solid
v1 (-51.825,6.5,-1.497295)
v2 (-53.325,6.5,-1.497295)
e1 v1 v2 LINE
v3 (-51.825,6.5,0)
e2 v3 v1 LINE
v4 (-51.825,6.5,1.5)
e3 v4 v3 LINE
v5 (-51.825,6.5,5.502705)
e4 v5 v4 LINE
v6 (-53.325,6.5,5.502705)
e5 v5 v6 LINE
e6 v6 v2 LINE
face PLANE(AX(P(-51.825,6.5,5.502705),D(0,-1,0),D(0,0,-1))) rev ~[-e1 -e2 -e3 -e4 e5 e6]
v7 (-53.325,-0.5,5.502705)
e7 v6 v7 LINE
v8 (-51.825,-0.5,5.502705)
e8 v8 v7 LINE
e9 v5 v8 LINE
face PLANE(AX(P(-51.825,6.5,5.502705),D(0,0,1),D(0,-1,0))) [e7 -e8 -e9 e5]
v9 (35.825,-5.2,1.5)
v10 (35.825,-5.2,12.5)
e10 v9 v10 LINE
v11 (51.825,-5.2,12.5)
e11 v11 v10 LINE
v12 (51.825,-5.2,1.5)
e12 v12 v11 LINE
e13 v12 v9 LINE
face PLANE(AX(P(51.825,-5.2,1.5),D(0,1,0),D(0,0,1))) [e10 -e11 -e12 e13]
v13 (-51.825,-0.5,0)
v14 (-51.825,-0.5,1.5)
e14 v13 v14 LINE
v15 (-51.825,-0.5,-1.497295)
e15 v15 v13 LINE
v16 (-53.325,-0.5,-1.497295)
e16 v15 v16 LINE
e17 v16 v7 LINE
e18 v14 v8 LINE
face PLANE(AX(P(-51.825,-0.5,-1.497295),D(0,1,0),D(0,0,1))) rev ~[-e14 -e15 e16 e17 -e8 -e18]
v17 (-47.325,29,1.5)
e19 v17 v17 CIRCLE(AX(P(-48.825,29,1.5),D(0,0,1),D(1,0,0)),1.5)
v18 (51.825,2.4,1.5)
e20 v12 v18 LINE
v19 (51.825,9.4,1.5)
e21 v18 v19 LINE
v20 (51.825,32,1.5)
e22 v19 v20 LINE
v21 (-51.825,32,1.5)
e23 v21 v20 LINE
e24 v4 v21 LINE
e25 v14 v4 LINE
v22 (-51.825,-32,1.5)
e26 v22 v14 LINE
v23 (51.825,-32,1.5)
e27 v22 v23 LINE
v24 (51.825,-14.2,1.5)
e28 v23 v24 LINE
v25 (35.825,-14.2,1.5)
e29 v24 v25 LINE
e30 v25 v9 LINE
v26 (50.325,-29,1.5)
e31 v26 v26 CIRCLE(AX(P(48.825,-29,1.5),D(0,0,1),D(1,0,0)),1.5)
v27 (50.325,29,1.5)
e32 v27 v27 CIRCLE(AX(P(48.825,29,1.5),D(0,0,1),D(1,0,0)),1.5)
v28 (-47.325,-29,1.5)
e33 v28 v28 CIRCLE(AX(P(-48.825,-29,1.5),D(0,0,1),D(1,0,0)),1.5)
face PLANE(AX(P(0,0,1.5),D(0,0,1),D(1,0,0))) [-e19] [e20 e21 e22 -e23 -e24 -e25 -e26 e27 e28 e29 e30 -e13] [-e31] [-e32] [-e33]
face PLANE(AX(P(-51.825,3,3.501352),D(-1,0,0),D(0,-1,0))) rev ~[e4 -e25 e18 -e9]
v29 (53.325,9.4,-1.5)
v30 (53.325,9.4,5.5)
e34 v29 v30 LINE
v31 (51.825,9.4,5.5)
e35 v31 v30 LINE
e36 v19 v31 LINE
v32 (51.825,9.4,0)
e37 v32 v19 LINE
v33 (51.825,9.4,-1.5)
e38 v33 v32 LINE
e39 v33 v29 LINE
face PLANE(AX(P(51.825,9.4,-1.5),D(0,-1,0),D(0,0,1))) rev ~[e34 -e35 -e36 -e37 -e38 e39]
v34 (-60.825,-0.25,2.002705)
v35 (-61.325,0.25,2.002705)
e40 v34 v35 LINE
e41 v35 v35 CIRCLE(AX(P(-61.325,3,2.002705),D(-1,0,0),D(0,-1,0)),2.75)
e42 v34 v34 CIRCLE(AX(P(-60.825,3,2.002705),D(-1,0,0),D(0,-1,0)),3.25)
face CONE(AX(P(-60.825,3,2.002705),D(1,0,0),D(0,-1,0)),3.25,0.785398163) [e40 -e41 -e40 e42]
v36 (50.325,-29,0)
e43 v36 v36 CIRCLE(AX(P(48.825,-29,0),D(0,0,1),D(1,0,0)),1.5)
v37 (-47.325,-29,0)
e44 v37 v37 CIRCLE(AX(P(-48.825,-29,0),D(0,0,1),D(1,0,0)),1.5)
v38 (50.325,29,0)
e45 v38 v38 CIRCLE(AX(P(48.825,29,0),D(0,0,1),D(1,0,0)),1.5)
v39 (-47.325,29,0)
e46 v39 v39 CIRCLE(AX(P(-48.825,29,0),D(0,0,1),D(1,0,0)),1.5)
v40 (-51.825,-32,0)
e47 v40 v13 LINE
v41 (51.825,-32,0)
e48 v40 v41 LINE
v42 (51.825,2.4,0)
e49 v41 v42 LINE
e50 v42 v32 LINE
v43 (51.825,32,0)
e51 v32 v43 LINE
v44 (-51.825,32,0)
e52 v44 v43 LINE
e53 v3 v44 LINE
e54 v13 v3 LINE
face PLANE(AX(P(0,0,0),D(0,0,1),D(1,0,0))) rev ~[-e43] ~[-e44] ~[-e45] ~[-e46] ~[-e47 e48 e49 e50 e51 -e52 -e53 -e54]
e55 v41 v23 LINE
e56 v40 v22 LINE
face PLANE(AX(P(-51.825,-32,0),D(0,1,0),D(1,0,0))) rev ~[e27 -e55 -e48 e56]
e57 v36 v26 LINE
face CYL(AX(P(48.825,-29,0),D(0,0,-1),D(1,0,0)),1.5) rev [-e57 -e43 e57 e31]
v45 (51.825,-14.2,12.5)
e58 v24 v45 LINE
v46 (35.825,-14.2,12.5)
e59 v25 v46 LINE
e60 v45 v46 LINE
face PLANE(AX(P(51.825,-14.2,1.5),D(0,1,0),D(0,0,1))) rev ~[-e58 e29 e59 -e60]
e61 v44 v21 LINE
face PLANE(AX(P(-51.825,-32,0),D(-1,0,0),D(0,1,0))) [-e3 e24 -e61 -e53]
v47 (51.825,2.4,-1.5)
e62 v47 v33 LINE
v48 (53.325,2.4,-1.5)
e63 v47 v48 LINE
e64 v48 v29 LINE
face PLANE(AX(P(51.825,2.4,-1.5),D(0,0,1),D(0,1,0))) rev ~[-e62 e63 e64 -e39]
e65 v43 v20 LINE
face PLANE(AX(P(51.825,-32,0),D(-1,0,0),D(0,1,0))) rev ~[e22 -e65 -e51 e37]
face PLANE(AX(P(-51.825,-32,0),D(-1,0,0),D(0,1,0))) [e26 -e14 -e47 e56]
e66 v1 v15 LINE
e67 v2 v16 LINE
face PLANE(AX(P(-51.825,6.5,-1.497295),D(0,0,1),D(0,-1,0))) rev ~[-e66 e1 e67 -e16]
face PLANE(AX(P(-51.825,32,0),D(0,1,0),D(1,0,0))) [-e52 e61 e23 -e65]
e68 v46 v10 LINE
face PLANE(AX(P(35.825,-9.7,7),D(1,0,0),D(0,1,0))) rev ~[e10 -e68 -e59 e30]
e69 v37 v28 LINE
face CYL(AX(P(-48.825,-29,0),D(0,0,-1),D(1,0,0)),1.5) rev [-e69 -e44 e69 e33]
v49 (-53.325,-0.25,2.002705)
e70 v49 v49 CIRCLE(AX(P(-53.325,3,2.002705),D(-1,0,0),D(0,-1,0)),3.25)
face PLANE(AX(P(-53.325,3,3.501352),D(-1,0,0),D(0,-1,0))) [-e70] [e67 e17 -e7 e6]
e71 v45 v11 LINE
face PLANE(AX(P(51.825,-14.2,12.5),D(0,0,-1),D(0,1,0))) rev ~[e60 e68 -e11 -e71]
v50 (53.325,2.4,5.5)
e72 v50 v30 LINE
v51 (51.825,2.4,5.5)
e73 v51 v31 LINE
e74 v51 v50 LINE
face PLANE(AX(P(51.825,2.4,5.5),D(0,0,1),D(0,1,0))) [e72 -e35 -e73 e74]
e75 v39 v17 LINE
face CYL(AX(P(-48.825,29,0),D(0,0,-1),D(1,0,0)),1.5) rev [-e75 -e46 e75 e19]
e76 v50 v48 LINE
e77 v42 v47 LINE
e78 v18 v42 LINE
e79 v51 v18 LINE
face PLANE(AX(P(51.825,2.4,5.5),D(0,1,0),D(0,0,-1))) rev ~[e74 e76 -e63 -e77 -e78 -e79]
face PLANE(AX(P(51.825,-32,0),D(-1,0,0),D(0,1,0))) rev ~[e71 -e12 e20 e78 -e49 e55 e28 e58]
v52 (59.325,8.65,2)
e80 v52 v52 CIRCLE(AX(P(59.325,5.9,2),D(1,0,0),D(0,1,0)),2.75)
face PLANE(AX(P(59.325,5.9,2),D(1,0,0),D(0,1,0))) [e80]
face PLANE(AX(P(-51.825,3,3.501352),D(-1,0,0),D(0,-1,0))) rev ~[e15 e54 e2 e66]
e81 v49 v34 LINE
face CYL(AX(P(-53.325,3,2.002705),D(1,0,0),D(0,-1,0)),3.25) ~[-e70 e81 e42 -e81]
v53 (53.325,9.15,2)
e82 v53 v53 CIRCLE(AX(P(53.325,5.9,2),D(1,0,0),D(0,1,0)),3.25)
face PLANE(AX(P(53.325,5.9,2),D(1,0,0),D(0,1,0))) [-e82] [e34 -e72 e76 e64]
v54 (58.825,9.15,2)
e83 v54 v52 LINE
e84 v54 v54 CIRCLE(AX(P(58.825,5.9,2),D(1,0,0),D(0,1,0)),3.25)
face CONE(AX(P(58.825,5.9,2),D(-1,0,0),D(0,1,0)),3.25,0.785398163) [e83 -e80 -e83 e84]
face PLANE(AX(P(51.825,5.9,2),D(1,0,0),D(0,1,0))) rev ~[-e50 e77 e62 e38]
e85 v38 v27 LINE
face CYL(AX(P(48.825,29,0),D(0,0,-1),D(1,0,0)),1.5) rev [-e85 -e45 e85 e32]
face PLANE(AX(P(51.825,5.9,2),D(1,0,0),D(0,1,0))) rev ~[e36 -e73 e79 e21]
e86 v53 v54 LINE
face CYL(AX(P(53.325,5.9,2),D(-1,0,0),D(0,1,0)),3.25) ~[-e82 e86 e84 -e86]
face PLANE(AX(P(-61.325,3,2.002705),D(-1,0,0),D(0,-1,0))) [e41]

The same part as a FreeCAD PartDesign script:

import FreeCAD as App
import Part
import Sketcher
from FreeCAD import Vector


def edges_at(feature, points):
    """Names of the edges that pass closest to the given points."""
    edges = feature.Shape.Edges
    near = lambda p: min(range(len(edges)), key=lambda i: edges[i].distToShape(Part.Vertex(*p))[0])
    return sorted({f"Edge{near(p) + 1}" for p in points})

doc = App.newDocument("Part")
body = doc.addObject("PartDesign::Body", "Body")

# Sketch on XY plane
sketch1 = body.newObject("Sketcher::SketchObject", "Sketch")
sketch1.AttachmentSupport = (doc.getObject("XY_Plane"), [""])
sketch1.MapMode = "FlatFace"
sketch1.addGeometry([
    Part.LineSegment(Vector(-51.8, 32, 0), Vector(-51.8, -32, 0)),  # 0
    Part.LineSegment(Vector(-51.8, -32, 0), Vector(51.8, -32, 0)),  # 1
    Part.LineSegment(Vector(51.8, -32, 0), Vector(51.8, 32, 0)),  # 2
    Part.LineSegment(Vector(51.8, 32, 0), Vector(-51.8, 32, 0)),  # 3
    Part.Circle(Vector(-48.8, -29, 0), Vector(0, 0, 1), 1.5),  # 4
    Part.Circle(Vector(48.8, -29, 0), Vector(0, 0, 1), 1.5),  # 5
    Part.Circle(Vector(-48.8, 29, 0), Vector(0, 0, 1), 1.5),  # 6
    Part.Circle(Vector(48.8, 29, 0), Vector(0, 0, 1), 1.5),  # 7
], False)
sketch1.addConstraint([
    Sketcher.Constraint("Coincident", 0, 2, 1, 1),
    Sketcher.Constraint("Coincident", 1, 2, 2, 1),
    Sketcher.Constraint("Coincident", 2, 2, 3, 1),
    Sketcher.Constraint("Coincident", 3, 2, 0, 1),
    Sketcher.Constraint("Vertical", 0),
    Sketcher.Constraint("Horizontal", 1),
    Sketcher.Constraint("Vertical", 2),
    Sketcher.Constraint("Horizontal", 3),
    Sketcher.Constraint("Equal", 4, 5),
    Sketcher.Constraint("Equal", 5, 6),
    Sketcher.Constraint("Equal", 6, 7),
    Sketcher.Constraint("Symmetric", 5, 3, 6, 3, -1, 1),
    Sketcher.Constraint("Symmetric", 4, 3, 7, 3, -1, 1),
    Sketcher.Constraint("Symmetric", 0, 2, 2, 2, -1, 1),
    Sketcher.Constraint("Symmetric", 4, 3, 5, 3, -2),
    Sketcher.Constraint("Diameter", 4, 3.0),
    Sketcher.Constraint("DistanceY", 0, 2, 0, 1, 64.0),
    Sketcher.Constraint("DistanceY", 4, 3, -1, 1, 29.0),
    Sketcher.Constraint("DistanceX", 0, 2, 4, 3, 3.0),
    Sketcher.Constraint("DistanceX", 1, 1, 1, 2, 103.65),
])
pad1 = body.newObject("PartDesign::Pad", "Pad")
pad1.Profile = sketch1
pad1.Length = 1.5

# Sketch on YZ plane
sketch2 = body.newObject("Sketcher::SketchObject", "Sketch001")
sketch2.AttachmentSupport = (doc.getObject("YZ_Plane"), [""])
sketch2.MapMode = "FlatFace"
sketch2.AttachmentOffset = App.Placement(Vector(0, 0, 51.825), App.Rotation())
sketch2.addGeometry([
    Part.LineSegment(Vector(-14, 12, 0), Vector(-14, 2, 0)),
    Part.LineSegment(Vector(-14, 2, 0), Vector(-5, 2, 0)),
    Part.LineSegment(Vector(-5, 2, 0), Vector(-5, 12, 0)),
    Part.LineSegment(Vector(-5, 12, 0), Vector(-14, 12, 0)),
], False)
sketch2.addConstraint([
    Sketcher.Constraint("Coincident", 0, 2, 1, 1),
    Sketcher.Constraint("Coincident", 1, 2, 2, 1),
    Sketcher.Constraint("Coincident", 2, 2, 3, 1),
    Sketcher.Constraint("Coincident", 3, 2, 0, 1),
    Sketcher.Constraint("Vertical", 0),
    Sketcher.Constraint("Horizontal", 1),
    Sketcher.Constraint("Vertical", 2),
    Sketcher.Constraint("Horizontal", 3),
    Sketcher.Constraint("DistanceX", 1, 1, 1, 2, 9.0),
    Sketcher.Constraint("DistanceY", 0, 2, 0, 1, 11.0),
    Sketcher.Constraint("DistanceX", 0, 2, -1, 1, 14.2),
    Sketcher.Constraint("DistanceY", -1, 1, 0, 2, 1.5),
])
pad2 = body.newObject("PartDesign::Pad", "Pad001")
pad2.Profile = sketch2
pad2.Length = 16
pad2.Reversed = True

# Sketch on YZ plane
sketch3 = body.newObject("Sketcher::SketchObject", "Sketch002")
sketch3.AttachmentSupport = (doc.getObject("YZ_Plane"), [""])
sketch3.MapMode = "FlatFace"
sketch3.AttachmentOffset = App.Placement(Vector(0, 0, 51.825), App.Rotation())
sketch3.addGeometry([
    Part.LineSegment(Vector(2, -2, 0), Vector(9, -2, 0)),
    Part.LineSegment(Vector(9, -2, 0), Vector(9, 6, 0)),
    Part.LineSegment(Vector(9, 6, 0), Vector(2, 6, 0)),
    Part.LineSegment(Vector(2, 6, 0), Vector(2, -2, 0)),
], False)
sketch3.addConstraint([
    Sketcher.Constraint("Coincident", 0, 2, 1, 1),
    Sketcher.Constraint("Coincident", 1, 2, 2, 1),
    Sketcher.Constraint("Coincident", 2, 2, 3, 1),
    Sketcher.Constraint("Coincident", 3, 2, 0, 1),
    Sketcher.Constraint("Horizontal", 0),
    Sketcher.Constraint("Vertical", 1),
    Sketcher.Constraint("Horizontal", 2),
    Sketcher.Constraint("Vertical", 3),
    Sketcher.Constraint("Equal", 2, 1),
    Sketcher.Constraint("DistanceX", 0, 1, 0, 2, 7.0),
    Sketcher.Constraint("DistanceX", -1, 1, 0, 2, 9.4),
    Sketcher.Constraint("DistanceY", 0, 2, -1, 1, 1.5),
])
pad3 = body.newObject("PartDesign::Pad", "Pad002")
pad3.Profile = sketch3
pad3.Length = 1.5

# Sketch on YZ plane
sketch4 = body.newObject("Sketcher::SketchObject", "Sketch003")
sketch4.AttachmentSupport = (doc.getObject("YZ_Plane"), [""])
sketch4.MapMode = "FlatFace"
sketch4.AttachmentOffset = App.Placement(Vector(0, 0, 53.325), App.Rotation())
sketch4.addGeometry(Part.Circle(Vector(5.9, 2, 0), Vector(0, 0, 1), 3.2), False)
sketch4.addConstraint([
    Sketcher.Constraint("Diameter", 0, 6.5),
    Sketcher.Constraint("DistanceY", -1, 1, 0, 3, 2.0),
    Sketcher.Constraint("DistanceX", -1, 1, 0, 3, 5.9),
])
pad4 = body.newObject("PartDesign::Pad", "Pad003")
pad4.Profile = sketch4
pad4.Length = 6

# Sketch on YZ plane
sketch5 = body.newObject("Sketcher::SketchObject", "Sketch004")
sketch5.AttachmentSupport = (doc.getObject("YZ_Plane"), [""])
sketch5.MapMode = "FlatFace"
sketch5.AttachmentOffset = App.Placement(Vector(0, 0, -51.825), App.Rotation())
sketch5.addGeometry([
    Part.LineSegment(Vector(6, 6, 0), Vector(6, -1, 0)),
    Part.LineSegment(Vector(6, -1, 0), Vector(0, -1, 0)),
    Part.LineSegment(Vector(0, -1, 0), Vector(0, 6, 0)),
    Part.LineSegment(Vector(0, 6, 0), Vector(6, 6, 0)),
], False)
sketch5.addConstraint([
    Sketcher.Constraint("Coincident", 0, 2, 1, 1),
    Sketcher.Constraint("Coincident", 1, 2, 2, 1),
    Sketcher.Constraint("Coincident", 2, 2, 3, 1),
    Sketcher.Constraint("Coincident", 3, 2, 0, 1),
    Sketcher.Constraint("Vertical", 0),
    Sketcher.Constraint("Horizontal", 1),
    Sketcher.Constraint("Vertical", 2),
    Sketcher.Constraint("Horizontal", 3),
    Sketcher.Constraint("Equal", 3, 0),
    Sketcher.Constraint("DistanceX", 1, 2, 1, 1, 7.0),
    Sketcher.Constraint("DistanceX", -1, 1, 0, 2, 6.5),
    Sketcher.Constraint("DistanceY", 0, 2, -1, 1, 1.497295),
])
pad5 = body.newObject("PartDesign::Pad", "Pad004")
pad5.Profile = sketch5
pad5.Length = 1.5
pad5.Reversed = True

# Sketch on YZ plane
sketch6 = body.newObject("Sketcher::SketchObject", "Sketch005")
sketch6.AttachmentSupport = (doc.getObject("YZ_Plane"), [""])
sketch6.MapMode = "FlatFace"
sketch6.AttachmentOffset = App.Placement(Vector(0, 0, -53.325), App.Rotation())
sketch6.addGeometry(Part.Circle(Vector(3, 2, 0), Vector(0, 0, 1), 3.2), False)
sketch6.addConstraint([
    Sketcher.Constraint("Diameter", 0, 6.5),
    Sketcher.Constraint("DistanceX", -1, 1, 0, 3, 3.0),
    Sketcher.Constraint("DistanceY", -1, 1, 0, 3, 2.002705),
])
pad6 = body.newObject("PartDesign::Pad", "Pad005")
pad6.Profile = sketch6
pad6.Length = 8
pad6.Reversed = True
doc.recompute()

chamfer = body.newObject("PartDesign::Chamfer", "Chamfer")
chamfer.Base = (pad6, edges_at(pad6, [(-61.325, 6.25, 2.003)]))
chamfer.Size = 0.5
doc.recompute()

chamfer2 = body.newObject("PartDesign::Chamfer", "Chamfer001")
chamfer2.Base = (chamfer, edges_at(chamfer, [(59.325, 2.65, 2)]))
chamfer2.Size = 0.5

doc.recompute()
